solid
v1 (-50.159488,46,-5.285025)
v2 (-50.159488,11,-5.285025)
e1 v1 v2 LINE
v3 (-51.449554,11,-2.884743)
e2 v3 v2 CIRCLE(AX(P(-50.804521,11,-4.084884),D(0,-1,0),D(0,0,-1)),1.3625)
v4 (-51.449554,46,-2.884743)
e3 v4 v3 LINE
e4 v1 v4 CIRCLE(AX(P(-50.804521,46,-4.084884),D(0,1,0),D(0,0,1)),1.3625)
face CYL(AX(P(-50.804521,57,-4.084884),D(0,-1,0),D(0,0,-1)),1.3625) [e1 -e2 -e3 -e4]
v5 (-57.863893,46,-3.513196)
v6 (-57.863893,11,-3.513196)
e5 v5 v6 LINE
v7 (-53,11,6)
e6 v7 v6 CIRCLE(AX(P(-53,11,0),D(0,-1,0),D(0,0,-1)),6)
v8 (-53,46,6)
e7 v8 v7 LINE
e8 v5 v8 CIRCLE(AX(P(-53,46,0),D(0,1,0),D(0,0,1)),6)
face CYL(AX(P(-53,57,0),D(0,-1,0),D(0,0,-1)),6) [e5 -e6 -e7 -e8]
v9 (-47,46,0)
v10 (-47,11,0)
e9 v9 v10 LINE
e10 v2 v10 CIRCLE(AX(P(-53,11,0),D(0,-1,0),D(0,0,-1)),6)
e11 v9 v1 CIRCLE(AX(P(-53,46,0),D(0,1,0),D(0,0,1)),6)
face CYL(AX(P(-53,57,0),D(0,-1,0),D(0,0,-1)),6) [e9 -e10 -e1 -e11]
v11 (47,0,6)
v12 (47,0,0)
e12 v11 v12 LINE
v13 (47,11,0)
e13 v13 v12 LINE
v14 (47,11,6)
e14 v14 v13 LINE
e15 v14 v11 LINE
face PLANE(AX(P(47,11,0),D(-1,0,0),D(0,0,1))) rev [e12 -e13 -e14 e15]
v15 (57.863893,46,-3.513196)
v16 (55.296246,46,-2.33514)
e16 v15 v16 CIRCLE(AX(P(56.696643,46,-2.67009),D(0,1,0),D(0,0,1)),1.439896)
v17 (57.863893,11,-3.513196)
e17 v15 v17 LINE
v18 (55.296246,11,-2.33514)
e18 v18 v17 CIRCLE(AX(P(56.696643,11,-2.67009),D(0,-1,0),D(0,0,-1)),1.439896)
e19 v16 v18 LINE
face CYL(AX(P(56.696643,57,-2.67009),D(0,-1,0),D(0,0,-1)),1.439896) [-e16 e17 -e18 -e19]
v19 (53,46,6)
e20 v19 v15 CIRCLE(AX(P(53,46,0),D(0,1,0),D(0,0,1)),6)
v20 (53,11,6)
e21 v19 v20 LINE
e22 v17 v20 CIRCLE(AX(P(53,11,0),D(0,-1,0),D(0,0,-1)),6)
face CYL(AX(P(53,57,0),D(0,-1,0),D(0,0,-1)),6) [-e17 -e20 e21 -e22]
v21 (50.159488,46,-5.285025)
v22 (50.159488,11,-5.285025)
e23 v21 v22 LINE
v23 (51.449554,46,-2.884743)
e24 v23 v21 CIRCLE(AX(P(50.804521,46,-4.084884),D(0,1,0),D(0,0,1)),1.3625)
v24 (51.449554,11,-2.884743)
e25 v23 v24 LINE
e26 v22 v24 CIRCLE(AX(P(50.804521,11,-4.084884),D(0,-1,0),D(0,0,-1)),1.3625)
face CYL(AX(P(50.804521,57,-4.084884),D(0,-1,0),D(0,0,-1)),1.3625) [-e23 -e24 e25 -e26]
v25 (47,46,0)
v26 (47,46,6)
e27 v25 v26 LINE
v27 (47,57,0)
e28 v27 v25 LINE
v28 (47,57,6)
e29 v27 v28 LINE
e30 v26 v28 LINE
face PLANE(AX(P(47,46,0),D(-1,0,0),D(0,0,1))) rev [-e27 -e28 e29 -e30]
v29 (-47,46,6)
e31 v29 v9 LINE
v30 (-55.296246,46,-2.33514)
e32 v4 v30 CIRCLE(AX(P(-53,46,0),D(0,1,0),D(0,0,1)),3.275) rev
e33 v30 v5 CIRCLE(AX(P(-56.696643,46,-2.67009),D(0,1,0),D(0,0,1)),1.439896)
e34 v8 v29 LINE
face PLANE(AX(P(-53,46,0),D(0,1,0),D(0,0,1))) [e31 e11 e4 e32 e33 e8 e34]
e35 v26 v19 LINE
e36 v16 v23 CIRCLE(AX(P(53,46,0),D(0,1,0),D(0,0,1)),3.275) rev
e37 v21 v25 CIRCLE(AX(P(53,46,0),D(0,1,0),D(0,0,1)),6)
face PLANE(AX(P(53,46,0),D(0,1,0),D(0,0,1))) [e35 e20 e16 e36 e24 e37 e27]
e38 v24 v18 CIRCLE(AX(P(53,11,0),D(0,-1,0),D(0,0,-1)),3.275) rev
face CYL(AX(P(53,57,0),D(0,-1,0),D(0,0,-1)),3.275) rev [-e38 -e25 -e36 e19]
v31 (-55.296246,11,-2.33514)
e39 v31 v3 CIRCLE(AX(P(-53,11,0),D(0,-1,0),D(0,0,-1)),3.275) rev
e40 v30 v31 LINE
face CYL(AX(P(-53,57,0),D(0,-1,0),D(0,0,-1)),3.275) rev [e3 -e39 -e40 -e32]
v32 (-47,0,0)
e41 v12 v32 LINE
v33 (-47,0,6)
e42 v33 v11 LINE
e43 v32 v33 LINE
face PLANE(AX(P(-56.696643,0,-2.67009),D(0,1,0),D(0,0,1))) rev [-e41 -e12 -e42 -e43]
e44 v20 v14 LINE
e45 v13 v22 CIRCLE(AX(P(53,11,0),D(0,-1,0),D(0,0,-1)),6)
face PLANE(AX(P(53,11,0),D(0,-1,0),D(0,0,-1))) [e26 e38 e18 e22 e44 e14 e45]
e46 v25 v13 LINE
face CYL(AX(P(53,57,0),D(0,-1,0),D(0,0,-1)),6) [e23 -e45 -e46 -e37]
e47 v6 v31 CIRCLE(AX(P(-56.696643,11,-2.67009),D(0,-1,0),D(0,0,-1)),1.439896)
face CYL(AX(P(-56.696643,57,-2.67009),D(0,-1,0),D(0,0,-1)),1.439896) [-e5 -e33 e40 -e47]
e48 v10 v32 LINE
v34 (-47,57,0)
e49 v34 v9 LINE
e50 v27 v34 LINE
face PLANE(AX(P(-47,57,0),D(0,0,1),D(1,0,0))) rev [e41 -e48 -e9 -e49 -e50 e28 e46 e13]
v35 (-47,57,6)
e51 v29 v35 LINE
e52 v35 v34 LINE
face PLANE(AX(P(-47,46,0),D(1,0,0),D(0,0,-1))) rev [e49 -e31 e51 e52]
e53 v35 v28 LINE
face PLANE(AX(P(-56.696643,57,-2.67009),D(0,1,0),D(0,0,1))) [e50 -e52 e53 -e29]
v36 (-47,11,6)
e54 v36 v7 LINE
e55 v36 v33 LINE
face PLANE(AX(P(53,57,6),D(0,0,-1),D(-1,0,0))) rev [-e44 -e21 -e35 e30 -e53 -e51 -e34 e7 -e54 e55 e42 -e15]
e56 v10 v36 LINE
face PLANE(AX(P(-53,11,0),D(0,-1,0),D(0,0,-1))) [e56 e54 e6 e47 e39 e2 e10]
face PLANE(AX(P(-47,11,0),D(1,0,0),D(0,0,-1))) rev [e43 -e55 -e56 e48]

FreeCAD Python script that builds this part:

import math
import FreeCAD as App
import Part
import Sketcher

V = App.Vector
Q = App.Units.Quantity

doc = App.newDocument("Part")
body = doc.addObject("PartDesign::Body", "Body")

# Sketch on XZ plane
sketch1 = body.newObject("Sketcher::SketchObject", "Sketch")
sketch1.AttachmentSupport = (doc.getObject("XZ_Plane"), [""])
sketch1.MapMode = "FlatFace"
sketch1.addGeometry([
    Part.LineSegment(V(47, 0, 0), V(-47, 0, 0)),  # 0
    Part.ArcOfCircle(Part.Circle(V(-53, 0, 0), V(0, 0, 1), 6), math.radians(-62), math.radians(0)),  # 1
    Part.ArcOfCircle(Part.Circle(V(-50.8, -4.1, 0), V(0, 0, 1), 1.4), math.radians(118), math.radians(298)),  # 2
    Part.ArcOfCircle(Part.Circle(V(-53, 0, 0), V(0, 0, 1), 3.3), math.radians(-62), math.radians(225)),  # 3
    Part.ArcOfCircle(Part.Circle(V(-56.7, -2.7, 0), V(0, 0, 1), 1.4), math.radians(-144), math.radians(13)),  # 4
    Part.ArcOfCircle(Part.Circle(V(-53, 0, 0), V(0, 0, 1), 6), math.radians(90), math.radians(216)),  # 5
    Part.LineSegment(V(-53, 6, 0), V(53, 6, 0)),  # 6
    Part.ArcOfCircle(Part.Circle(V(53, 0, 0), V(0, 0, 1), 6), math.radians(-36), math.radians(90)),  # 7
    Part.ArcOfCircle(Part.Circle(V(56.7, -2.7, 0), V(0, 0, 1), 1.4), math.radians(167), math.radians(324)),  # 8
    Part.ArcOfCircle(Part.Circle(V(53, 0, 0), V(0, 0, 1), 3.3), math.radians(-45), math.radians(242)),  # 9
    Part.ArcOfCircle(Part.Circle(V(50.8, -4.1, 0), V(0, 0, 1), 1.4), math.radians(-118), math.radians(62)),  # 10
    Part.ArcOfCircle(Part.Circle(V(53, 0, 0), V(0, 0, 1), 6), math.radians(-180), math.radians(-118)),  # 11
], False)
sketch1.addConstraint([
    Sketcher.Constraint("Coincident", 0, 2, 1, 2),
    Sketcher.Constraint("Tangent", 1, 1, 2, 2),
    Sketcher.Constraint("Tangent", 2, 1, 3, 1),
    Sketcher.Constraint("Coincident", 3, 2, 4, 2),
    Sketcher.Constraint("Tangent", 4, 1, 5, 2),
    Sketcher.Constraint("Tangent", 5, 1, 6, 1),
    Sketcher.Constraint("Tangent", 6, 2, 7, 2),
    Sketcher.Constraint("Tangent", 7, 1, 8, 2),
    Sketcher.Constraint("Coincident", 8, 1, 9, 1),
    Sketcher.Constraint("Tangent", 9, 2, 10, 2),
    Sketcher.Constraint("Tangent", 10, 1, 11, 2),
    Sketcher.Constraint("Coincident", 11, 1, 0, 1),
    Sketcher.Constraint("Horizontal", 0),
    Sketcher.Constraint("Horizontal", 6),
    Sketcher.Constraint("Coincident", 3, 3, 1, 3),
    Sketcher.Constraint("Coincident", 5, 3, 1, 3),
    Sketcher.Constraint("Coincident", 9, 3, 7, 3),
    Sketcher.Constraint("Coincident", 11, 3, 7, 3),
    Sketcher.Constraint("Equal", 1, 5),
    Sketcher.Constraint("Equal", 5, 7),
    Sketcher.Constraint("Equal", 4, 8),
    Sketcher.Constraint("Equal", 3, 9),
    Sketcher.Constraint("Equal", 2, 10),
    Sketcher.Constraint("Symmetric", 1, 3, 7, 3, -1, 1),
    Sketcher.Constraint("PointOnObject", 0, 2, -1),
    Sketcher.Constraint("Horizontal", 4, 3, 8, 3),
    Sketcher.Constraint("Horizontal", 2, 3, 10, 3),
    Sketcher.Constraint("Radius", 1, Q("6 mm")),
    Sketcher.Constraint("DistanceX", 0, 2, 0, 1, Q("94 mm")),
    Sketcher.Constraint("Radius", 3, Q("3.275 mm")),
    Sketcher.Constraint("Radius", 4, Q("1.439896 mm")),
    Sketcher.Constraint("DistanceX", 2, 3, -1, 1, Q("50.804521 mm")),
    Sketcher.Constraint("DistanceY", 4, 3, -1, 1, Q("2.67009 mm")),
])
pad1 = body.newObject("PartDesign::Pad", "Pad")
pad1.Profile = sketch1
pad1.Length = 57
pad1.Reversed = True

# Sketch on XZ plane
sketch2 = body.newObject("Sketcher::SketchObject", "Sketch001")
sketch2.AttachmentSupport = (doc.getObject("XZ_Plane"), [""])
sketch2.MapMode = "FlatFace"
sketch2.AttachmentOffset = App.Placement(V(0, 0, -46), App.Rotation())
sketch2.addGeometry([
    Part.LineSegment(V(47, 0, 0), V(47, 6, 0)),  # 0
    Part.LineSegment(V(47, 6, 0), V(53, 6, 0)),  # 1
    Part.ArcOfCircle(Part.Circle(V(53, 0, 0), V(0, 0, 1), 6), math.radians(180), math.radians(450)),  # 2
    Part.LineSegment(V(-47, 6, 0), V(-47, 0, 0)),  # 3
    Part.ArcOfCircle(Part.Circle(V(-53, 0, 0), V(0, 0, 1), 6), math.radians(90), math.radians(360)),  # 4
    Part.LineSegment(V(-53, 6, 0), V(-47, 6, 0)),  # 5
], False)
sketch2.addConstraint([
    Sketcher.Constraint("Coincident", 0, 2, 1, 1),
    Sketcher.Constraint("Tangent", 1, 2, 2, 2),
    Sketcher.Constraint("Tangent", 2, 1, 0, 1),
    Sketcher.Constraint("Tangent", 3, 2, 4, 2),
    Sketcher.Constraint("Tangent", 4, 1, 5, 1),
    Sketcher.Constraint("Coincident", 5, 2, 3, 1),
    Sketcher.Constraint("Vertical", 0),
    Sketcher.Constraint("Horizontal", 1),
    Sketcher.Constraint("Vertical", 3),
    Sketcher.Constraint("Horizontal", 5),
    Sketcher.Constraint("Equal", 2, 4),
    Sketcher.Constraint("Symmetric", 2, 3, 4, 3, -1, 1),
    Sketcher.Constraint("PointOnObject", 2, 3, -1),
    Sketcher.Constraint("Radius", 2, Q("6 mm")),
    Sketcher.Constraint("DistanceX", -1, 1, 2, 3, Q("53 mm")),
])
pocket1 = body.newObject("PartDesign::Pocket", "Pocket")
pocket1.Profile = sketch2
pocket1.Length = 11

# Sketch on XZ plane
sketch3 = body.newObject("Sketcher::SketchObject", "Sketch002")
sketch3.AttachmentSupport = (doc.getObject("XZ_Plane"), [""])
sketch3.MapMode = "FlatFace"
sketch3.addGeometry([
    Part.LineSegment(V(-47, 0, 0), V(-47, 6, 0)),  # 0
    Part.LineSegment(V(-47, 6, 0), V(-53, 6, 0)),  # 1
    Part.ArcOfCircle(Part.Circle(V(-53, 0, 0), V(0, 0, 1), 6), math.radians(90), math.radians(360)),  # 2
    Part.LineSegment(V(47, 6, 0), V(47, 0, 0)),  # 3
    Part.ArcOfCircle(Part.Circle(V(53, 0, 0), V(0, 0, 1), 6), math.radians(180), math.radians(450)),  # 4
    Part.LineSegment(V(53, 6, 0), V(47, 6, 0)),  # 5
], False)
sketch3.addConstraint([
    Sketcher.Constraint("Coincident", 0, 2, 1, 1),
    Sketcher.Constraint("Tangent", 1, 2, 2, 1),
    Sketcher.Constraint("Tangent", 2, 2, 0, 1),
    Sketcher.Constraint("Tangent", 3, 2, 4, 1),
    Sketcher.Constraint("Tangent", 4, 2, 5, 1),
    Sketcher.Constraint("Coincident", 5, 2, 3, 1),
    Sketcher.Constraint("Vertical", 0),
    Sketcher.Constraint("Horizontal", 1),
    Sketcher.Constraint("Vertical", 3),
    Sketcher.Constraint("Horizontal", 5),
    Sketcher.Constraint("Equal", 2, 4),
    Sketcher.Constraint("Symmetric", 2, 3, 4, 3, -1, 1),
    Sketcher.Constraint("PointOnObject", 2, 3, -1),
    Sketcher.Constraint("Radius", 2, Q("6 mm")),
    Sketcher.Constraint("DistanceX", 2, 3, -1, 1, Q("53 mm")),
])
pocket2 = body.newObject("PartDesign::Pocket", "Pocket001")
pocket2.Profile = sketch3
pocket2.Length = 11

doc.recompute()
